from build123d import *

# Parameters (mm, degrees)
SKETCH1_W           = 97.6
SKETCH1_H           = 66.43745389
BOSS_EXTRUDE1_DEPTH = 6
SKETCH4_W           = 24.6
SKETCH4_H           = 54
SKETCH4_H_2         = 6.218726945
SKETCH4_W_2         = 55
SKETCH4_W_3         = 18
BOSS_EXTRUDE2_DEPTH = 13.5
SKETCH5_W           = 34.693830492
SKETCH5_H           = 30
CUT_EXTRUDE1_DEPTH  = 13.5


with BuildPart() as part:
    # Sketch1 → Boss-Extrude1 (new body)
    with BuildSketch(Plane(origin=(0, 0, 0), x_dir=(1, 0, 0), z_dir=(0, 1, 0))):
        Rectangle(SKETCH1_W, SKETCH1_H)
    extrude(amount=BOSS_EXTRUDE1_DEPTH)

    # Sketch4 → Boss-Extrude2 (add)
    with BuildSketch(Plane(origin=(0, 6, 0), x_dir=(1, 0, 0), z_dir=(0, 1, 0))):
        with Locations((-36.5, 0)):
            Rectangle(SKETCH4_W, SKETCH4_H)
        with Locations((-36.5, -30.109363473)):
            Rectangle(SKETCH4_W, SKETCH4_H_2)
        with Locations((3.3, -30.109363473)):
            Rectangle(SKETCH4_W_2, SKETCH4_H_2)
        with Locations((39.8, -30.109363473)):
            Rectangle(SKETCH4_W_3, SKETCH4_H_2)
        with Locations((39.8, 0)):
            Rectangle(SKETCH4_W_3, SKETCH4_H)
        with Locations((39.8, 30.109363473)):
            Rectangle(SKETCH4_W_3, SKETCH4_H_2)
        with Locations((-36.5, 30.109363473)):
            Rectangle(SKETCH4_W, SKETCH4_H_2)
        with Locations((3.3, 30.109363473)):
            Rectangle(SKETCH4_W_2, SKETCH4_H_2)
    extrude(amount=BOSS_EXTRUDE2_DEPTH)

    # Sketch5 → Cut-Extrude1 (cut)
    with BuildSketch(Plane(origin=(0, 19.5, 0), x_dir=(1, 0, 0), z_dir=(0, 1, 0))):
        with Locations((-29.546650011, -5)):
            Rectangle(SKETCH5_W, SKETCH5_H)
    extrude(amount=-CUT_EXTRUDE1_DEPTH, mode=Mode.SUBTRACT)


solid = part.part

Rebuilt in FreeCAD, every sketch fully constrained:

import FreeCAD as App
import Part
import Sketcher


def add_polygon(sketch, points):
    """Adds a closed chain of lines whose ends are joined by coincident constraints."""
    first, n = sketch.GeometryCount, len(points)
    for a, b in zip(points, points[1:] + points[:1]):
        sketch.addGeometry(Part.LineSegment(App.Vector(*a, 0), App.Vector(*b, 0)), False)
    for i in range(n):
        sketch.addConstraint(Sketcher.Constraint("Coincident", first + i, 2, first + (i + 1) % n, 1))

doc = App.newDocument("Part")
body = doc.addObject("PartDesign::Body", "Body")

sketch1 = doc.addObject("Sketcher::SketchObject", "Sketch")
body.addObject(sketch1)
sketch1.AttachmentSupport = (doc.XZ_Plane, [""])
sketch1.MapMode = "FlatFace"
add_polygon(sketch1, [(-49, -33), (-49, 33), (49, 33), (49, -33)])
sketch1.addConstraint([
    Sketcher.Constraint("Vertical", 0),
    Sketcher.Constraint("Horizontal", 1),
    Sketcher.Constraint("Vertical", 2),
    Sketcher.Constraint("Horizontal", 3),
    Sketcher.Constraint("Symmetric", 0, 2, 2, 2, -1, 1),
    Sketcher.Constraint("DistanceX", 1, 1, 1, 2, 97.6),
    Sketcher.Constraint("DistanceY", 0, 1, 0, 2, 66.437454),
])
pad1 = doc.addObject("PartDesign::Pad", "Pad")
body.addObject(pad1)
pad1.Profile = sketch1
pad1.Length = 6
pad1.Reversed = True

sketch2 = doc.addObject("Sketcher::SketchObject", "Sketch001")
body.addObject(sketch2)
sketch2.AttachmentSupport = (doc.XZ_Plane, [""])
sketch2.MapMode = "FlatFace"
sketch2.AttachmentOffset = App.Placement(App.Vector(0, 0, -6), App.Rotation())
add_polygon(sketch2, [(-49, 33), (49, 33), (49, -33), (-49, -33)])
add_polygon(sketch2, [(31, -27), (31, 27), (-24, 27), (-24, -27)])
sketch2.addConstraint([
    Sketcher.Constraint("Horizontal", 0),
    Sketcher.Constraint("Vertical", 1),
    Sketcher.Constraint("Horizontal", 2),
    Sketcher.Constraint("Vertical", 3),
    Sketcher.Constraint("Vertical", 4),
    Sketcher.Constraint("Horizontal", 5),
    Sketcher.Constraint("Vertical", 6),
    Sketcher.Constraint("Horizontal", 7),
    Sketcher.Constraint("Symmetric", 0, 2, 2, 2, -1, 1),
    Sketcher.Constraint("DistanceX", 5, 2, 5, 1, 55.0),
    Sketcher.Constraint("DistanceY", 4, 1, 4, 2, 54.0),
    Sketcher.Constraint("DistanceX", 0, 1, 0, 2, 97.6),
    Sketcher.Constraint("DistanceY", -1, 1, 4, 2, 27.0),
    Sketcher.Constraint("DistanceX", 4, 2, 0, 2, 18.0),
    Sketcher.Constraint("DistanceY", 1, 2, 1, 1, 66.437454),
])
pad2 = doc.addObject("PartDesign::Pad", "Pad001")
body.addObject(pad2)
pad2.Profile = sketch2
pad2.Length = 13.5
pad2.Reversed = True

sketch3 = doc.addObject("Sketcher::SketchObject", "Sketch002")
body.addObject(sketch3)
sketch3.AttachmentSupport = (doc.XZ_Plane, [""])
sketch3.MapMode = "FlatFace"
sketch3.AttachmentOffset = App.Placement(App.Vector(0, 0, -19.5), App.Rotation())
add_polygon(sketch3, [(-47, -10), (-47, 20), (-12, 20), (-12, -10)])
sketch3.addConstraint([
    Sketcher.Constraint("Vertical", 0),
    Sketcher.Constraint("Horizontal", 1),
    Sketcher.Constraint("Vertical", 2),
    Sketcher.Constraint("Horizontal", 3),
    Sketcher.Constraint("DistanceY", 0, 1, 0, 2, 30.0),
    Sketcher.Constraint("DistanceY", -1, 1, 0, 2, 20.0),
    Sketcher.Constraint("DistanceX", 1, 1, 1, 2, 34.69383),
    Sketcher.Constraint("DistanceX", 0, 2, -1, 1, 46.893565),
])
pocket1 = doc.addObject("PartDesign::Pocket", "Pocket")
body.addObject(pocket1)
pocket1.Profile = sketch3
pocket1.Length = 13.5
pocket1.Reversed = True

doc.recompute()
